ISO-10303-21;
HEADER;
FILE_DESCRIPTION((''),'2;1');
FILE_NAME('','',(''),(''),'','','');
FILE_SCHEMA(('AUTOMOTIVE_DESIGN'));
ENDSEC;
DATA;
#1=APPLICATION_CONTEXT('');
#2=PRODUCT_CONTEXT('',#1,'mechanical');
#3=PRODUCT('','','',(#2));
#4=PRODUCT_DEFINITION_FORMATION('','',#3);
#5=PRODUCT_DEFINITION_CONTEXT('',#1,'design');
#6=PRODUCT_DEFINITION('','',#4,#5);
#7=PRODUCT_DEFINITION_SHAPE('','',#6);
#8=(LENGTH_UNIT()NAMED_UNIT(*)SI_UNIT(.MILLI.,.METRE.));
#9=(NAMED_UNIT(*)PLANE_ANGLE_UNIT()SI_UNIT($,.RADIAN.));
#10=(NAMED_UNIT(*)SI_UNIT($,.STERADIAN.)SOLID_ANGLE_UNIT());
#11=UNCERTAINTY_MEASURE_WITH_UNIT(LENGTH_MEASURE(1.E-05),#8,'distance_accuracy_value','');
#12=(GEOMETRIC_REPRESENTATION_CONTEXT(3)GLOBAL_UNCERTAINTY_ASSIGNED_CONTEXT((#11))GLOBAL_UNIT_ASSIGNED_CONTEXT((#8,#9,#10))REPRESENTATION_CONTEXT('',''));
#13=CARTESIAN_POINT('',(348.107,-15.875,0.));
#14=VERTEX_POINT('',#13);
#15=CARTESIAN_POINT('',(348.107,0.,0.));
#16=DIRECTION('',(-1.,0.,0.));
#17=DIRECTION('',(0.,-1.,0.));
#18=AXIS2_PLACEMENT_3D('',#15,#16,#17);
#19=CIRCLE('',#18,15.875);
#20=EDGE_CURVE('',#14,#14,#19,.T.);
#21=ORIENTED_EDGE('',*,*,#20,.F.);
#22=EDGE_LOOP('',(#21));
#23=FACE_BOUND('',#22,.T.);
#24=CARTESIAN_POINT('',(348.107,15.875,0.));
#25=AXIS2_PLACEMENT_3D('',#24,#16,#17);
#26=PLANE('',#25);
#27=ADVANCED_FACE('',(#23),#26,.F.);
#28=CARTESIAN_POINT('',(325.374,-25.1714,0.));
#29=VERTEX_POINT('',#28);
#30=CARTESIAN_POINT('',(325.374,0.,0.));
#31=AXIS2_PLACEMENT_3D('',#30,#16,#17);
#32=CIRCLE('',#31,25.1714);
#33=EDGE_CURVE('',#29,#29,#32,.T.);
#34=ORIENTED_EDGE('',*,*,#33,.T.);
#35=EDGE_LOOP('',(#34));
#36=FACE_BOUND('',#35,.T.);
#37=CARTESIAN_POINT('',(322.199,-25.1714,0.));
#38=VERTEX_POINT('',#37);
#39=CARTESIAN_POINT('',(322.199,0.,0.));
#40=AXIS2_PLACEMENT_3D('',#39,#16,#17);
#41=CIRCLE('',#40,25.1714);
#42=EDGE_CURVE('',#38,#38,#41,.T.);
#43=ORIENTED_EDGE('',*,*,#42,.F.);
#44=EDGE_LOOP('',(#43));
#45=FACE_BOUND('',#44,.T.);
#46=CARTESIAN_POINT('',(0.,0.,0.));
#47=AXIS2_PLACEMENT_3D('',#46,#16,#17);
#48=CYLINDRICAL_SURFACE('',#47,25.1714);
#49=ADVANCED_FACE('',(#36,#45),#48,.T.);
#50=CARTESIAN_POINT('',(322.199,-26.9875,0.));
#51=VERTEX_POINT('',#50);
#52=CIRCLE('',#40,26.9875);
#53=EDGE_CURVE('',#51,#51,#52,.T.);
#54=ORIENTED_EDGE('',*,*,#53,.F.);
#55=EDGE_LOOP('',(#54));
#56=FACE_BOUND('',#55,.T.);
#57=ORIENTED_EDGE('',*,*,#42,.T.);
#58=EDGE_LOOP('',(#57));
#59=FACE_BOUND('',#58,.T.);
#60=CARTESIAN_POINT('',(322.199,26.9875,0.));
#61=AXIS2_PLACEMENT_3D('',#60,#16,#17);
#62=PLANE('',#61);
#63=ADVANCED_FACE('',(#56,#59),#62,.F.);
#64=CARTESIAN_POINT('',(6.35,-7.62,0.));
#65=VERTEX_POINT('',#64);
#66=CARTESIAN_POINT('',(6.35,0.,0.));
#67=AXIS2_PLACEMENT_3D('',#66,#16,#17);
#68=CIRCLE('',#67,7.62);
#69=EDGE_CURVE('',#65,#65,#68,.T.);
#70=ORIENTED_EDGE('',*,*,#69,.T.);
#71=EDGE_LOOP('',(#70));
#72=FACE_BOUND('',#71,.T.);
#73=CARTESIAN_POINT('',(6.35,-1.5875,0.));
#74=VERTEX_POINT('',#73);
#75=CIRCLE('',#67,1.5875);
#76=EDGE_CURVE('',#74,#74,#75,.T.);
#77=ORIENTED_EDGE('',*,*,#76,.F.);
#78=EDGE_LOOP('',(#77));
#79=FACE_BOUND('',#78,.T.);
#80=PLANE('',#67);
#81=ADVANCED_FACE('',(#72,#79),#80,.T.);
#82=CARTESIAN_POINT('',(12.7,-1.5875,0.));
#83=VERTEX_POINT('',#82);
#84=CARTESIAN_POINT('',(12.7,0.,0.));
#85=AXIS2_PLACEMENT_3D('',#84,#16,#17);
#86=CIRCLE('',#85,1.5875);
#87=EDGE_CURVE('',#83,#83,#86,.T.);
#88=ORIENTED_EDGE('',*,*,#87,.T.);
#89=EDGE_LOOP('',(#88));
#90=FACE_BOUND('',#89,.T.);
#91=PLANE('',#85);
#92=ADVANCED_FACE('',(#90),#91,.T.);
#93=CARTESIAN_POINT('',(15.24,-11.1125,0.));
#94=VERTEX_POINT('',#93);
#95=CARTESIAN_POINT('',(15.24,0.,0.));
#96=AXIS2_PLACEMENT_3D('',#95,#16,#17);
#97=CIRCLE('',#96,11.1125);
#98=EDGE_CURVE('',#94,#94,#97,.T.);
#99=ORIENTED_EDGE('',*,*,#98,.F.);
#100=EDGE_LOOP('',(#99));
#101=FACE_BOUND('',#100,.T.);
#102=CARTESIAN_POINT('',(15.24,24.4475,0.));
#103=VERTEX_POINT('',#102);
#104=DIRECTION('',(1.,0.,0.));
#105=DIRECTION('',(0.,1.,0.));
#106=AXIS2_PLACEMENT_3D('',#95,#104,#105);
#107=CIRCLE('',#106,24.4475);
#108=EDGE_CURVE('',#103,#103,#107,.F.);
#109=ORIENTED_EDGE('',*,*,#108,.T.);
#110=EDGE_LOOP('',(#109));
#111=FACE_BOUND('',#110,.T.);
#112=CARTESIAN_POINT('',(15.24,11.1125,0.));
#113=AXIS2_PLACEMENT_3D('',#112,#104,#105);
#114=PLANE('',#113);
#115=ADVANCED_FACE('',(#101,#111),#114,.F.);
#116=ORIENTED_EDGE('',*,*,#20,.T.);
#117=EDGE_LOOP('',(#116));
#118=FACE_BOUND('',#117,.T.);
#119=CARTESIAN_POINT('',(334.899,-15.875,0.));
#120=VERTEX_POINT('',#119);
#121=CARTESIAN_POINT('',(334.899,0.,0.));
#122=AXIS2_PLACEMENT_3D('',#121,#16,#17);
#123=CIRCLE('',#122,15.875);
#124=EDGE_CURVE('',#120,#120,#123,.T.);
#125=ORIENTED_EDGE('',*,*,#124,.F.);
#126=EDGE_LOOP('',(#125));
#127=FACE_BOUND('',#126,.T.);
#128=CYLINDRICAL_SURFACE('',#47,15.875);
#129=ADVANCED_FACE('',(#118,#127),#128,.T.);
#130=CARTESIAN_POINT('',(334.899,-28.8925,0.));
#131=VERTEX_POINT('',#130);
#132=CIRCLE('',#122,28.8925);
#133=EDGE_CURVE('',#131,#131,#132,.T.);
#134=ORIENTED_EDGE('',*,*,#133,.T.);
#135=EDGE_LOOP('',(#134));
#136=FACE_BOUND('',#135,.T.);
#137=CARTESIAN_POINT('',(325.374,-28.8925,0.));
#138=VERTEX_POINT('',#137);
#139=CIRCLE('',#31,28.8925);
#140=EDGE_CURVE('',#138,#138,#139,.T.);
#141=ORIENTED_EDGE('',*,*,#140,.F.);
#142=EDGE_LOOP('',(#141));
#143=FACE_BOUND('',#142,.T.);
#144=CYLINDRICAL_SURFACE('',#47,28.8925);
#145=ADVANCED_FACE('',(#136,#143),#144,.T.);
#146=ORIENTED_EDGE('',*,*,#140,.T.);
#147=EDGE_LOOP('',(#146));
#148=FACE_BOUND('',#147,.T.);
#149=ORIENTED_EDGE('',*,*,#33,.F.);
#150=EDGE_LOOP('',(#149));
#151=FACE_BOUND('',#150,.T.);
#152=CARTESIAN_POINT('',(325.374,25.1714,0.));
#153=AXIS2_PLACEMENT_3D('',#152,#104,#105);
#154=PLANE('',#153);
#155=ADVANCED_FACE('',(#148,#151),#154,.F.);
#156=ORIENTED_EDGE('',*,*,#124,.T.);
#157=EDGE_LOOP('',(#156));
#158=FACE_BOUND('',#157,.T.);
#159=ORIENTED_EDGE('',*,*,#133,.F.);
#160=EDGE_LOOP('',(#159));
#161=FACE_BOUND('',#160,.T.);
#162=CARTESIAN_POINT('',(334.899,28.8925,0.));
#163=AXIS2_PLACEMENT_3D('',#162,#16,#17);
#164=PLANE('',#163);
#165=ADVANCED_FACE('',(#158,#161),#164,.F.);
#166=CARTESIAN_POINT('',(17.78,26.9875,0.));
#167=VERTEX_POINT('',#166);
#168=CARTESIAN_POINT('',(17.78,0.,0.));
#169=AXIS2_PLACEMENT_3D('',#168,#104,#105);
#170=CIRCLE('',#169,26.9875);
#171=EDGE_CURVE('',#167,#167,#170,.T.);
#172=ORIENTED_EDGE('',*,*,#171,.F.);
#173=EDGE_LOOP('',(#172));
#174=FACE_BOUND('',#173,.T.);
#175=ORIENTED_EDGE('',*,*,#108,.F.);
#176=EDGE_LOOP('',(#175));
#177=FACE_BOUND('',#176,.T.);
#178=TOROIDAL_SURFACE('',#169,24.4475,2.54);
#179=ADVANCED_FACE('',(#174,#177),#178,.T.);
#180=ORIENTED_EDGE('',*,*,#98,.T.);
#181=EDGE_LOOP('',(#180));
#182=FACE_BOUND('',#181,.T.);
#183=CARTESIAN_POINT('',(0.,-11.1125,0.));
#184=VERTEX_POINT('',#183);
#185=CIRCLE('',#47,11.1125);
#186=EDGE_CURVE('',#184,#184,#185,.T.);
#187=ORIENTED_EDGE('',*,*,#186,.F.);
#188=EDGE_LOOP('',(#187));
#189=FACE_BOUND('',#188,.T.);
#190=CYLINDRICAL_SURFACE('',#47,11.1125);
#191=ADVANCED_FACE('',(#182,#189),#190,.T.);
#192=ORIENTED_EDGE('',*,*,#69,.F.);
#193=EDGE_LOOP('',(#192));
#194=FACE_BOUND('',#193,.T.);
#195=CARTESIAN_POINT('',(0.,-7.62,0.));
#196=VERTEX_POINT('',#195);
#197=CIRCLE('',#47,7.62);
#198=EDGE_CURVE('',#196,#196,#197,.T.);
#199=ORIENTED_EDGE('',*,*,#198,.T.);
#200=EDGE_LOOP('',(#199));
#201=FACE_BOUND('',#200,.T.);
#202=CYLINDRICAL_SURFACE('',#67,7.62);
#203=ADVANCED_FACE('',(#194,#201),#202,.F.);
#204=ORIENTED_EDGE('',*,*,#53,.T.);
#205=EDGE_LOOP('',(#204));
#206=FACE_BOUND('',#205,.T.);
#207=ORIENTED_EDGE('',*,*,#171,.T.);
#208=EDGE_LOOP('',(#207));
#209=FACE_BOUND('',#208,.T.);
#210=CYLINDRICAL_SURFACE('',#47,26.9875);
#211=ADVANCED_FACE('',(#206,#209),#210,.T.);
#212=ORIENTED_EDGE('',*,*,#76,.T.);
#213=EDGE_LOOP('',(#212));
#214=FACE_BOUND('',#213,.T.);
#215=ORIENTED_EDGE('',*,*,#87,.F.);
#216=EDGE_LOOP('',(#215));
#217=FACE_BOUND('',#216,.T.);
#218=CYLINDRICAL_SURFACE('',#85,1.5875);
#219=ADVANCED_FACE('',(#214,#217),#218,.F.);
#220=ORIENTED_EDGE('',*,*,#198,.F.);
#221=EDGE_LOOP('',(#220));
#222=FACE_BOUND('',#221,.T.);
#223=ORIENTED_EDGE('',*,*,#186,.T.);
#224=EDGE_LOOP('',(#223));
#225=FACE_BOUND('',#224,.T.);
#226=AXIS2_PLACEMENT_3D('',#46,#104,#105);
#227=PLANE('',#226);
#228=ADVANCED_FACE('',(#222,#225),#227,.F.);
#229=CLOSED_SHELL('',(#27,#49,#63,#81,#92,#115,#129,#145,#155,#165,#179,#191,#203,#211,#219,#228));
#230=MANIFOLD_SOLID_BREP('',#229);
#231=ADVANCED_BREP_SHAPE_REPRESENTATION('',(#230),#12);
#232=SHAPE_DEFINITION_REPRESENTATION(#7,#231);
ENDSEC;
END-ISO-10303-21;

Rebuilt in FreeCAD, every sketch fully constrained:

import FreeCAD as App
import Part
import Sketcher
Q = App.Units.Quantity


def edges_at(feature, points):
    """Names of the edges that pass closest to the given points."""
    edges = feature.Shape.Edges
    near = lambda p: min(range(len(edges)), key=lambda i: edges[i].distToShape(Part.Vertex(*p))[0])
    return sorted({f"Edge{near(p) + 1}" for p in points})

doc = App.newDocument("Part")
body = doc.addObject("PartDesign::Body", "Body")

# Sketch on XY plane
sketch1 = doc.addObject("Sketcher::SketchObject", "Sketch")
body.addObject(sketch1)
sketch1.AttachmentSupport = (doc.XY_Plane, [""])
sketch1.MapMode = "FlatFace"
sketch1.addGeometry([
    Part.LineSegment(App.Vector(0, 11.1, 0), App.Vector(0, 0, 0)),  # 0
    Part.LineSegment(App.Vector(0, 0, 0), App.Vector(348.1, 0, 0)),  # 1
    Part.LineSegment(App.Vector(348.1, 0, 0), App.Vector(348.1, 15.9, 0)),  # 2
    Part.LineSegment(App.Vector(348.1, 15.9, 0), App.Vector(334.9, 15.9, 0)),  # 3
    Part.LineSegment(App.Vector(334.9, 15.9, 0), App.Vector(334.9, 28.9, 0)),  # 4
    Part.LineSegment(App.Vector(334.9, 28.9, 0), App.Vector(325.4, 28.9, 0)),  # 5
    Part.LineSegment(App.Vector(325.4, 28.9, 0), App.Vector(325.4, 25.2, 0)),  # 6
    Part.LineSegment(App.Vector(325.4, 25.2, 0), App.Vector(322.2, 25.2, 0)),  # 7
    Part.LineSegment(App.Vector(322.2, 25.2, 0), App.Vector(322.2, 27, 0)),  # 8
    Part.LineSegment(App.Vector(322.2, 27, 0), App.Vector(15.2, 27, 0)),  # 9
    Part.LineSegment(App.Vector(15.2, 27, 0), App.Vector(15.2, 11.1, 0)),  # 10
    Part.LineSegment(App.Vector(15.2, 11.1, 0), App.Vector(0, 11.1, 0)),  # 11
], False)
sketch1.addConstraint([
    Sketcher.Constraint("Coincident", 0, 2, 1, 1),
    Sketcher.Constraint("Coincident", 1, 2, 2, 1),
    Sketcher.Constraint("Coincident", 2, 2, 3, 1),
    Sketcher.Constraint("Coincident", 3, 2, 4, 1),
    Sketcher.Constraint("Coincident", 4, 2, 5, 1),
    Sketcher.Constraint("Coincident", 5, 2, 6, 1),
    Sketcher.Constraint("Coincident", 6, 2, 7, 1),
    Sketcher.Constraint("Coincident", 7, 2, 8, 1),
    Sketcher.Constraint("Coincident", 8, 2, 9, 1),
    Sketcher.Constraint("Coincident", 9, 2, 10, 1),
    Sketcher.Constraint("Coincident", 10, 2, 11, 1),
    Sketcher.Constraint("Coincident", 11, 2, 0, 1),
    Sketcher.Constraint("Vertical", 0),
    Sketcher.Constraint("Horizontal", 1),
    Sketcher.Constraint("Vertical", 2),
    Sketcher.Constraint("Horizontal", 3),
    Sketcher.Constraint("Vertical", 4),
    Sketcher.Constraint("Horizontal", 5),
    Sketcher.Constraint("Vertical", 6),
    Sketcher.Constraint("Horizontal", 7),
    Sketcher.Constraint("Vertical", 8),
    Sketcher.Constraint("Horizontal", 9),
    Sketcher.Constraint("Vertical", 10),
    Sketcher.Constraint("Horizontal", 11),
    Sketcher.Constraint("Coincident", 0, 2, -1, 1),
    Sketcher.Constraint("Equal", 2, 10),
    Sketcher.Constraint("DistanceX", 11, 2, 11, 1, Q("0.6 in")),
    Sketcher.Constraint("DistanceX", 3, 2, 3, 1, Q("0.52 in")),
    Sketcher.Constraint("DistanceX", 7, 2, 4, 2, Q("0.5 in")),
    Sketcher.Constraint("DistanceX", 1, 1, 1, 2, Q("13.705 in")),
    Sketcher.Constraint("DistanceX", 5, 2, 5, 1, Q("0.375 in")),
    Sketcher.Constraint("DistanceY", 0, 2, 0, 1, Q("0.4375 in")),
    Sketcher.Constraint("DistanceY", 2, 1, 2, 2, Q("0.625 in")),
    Sketcher.Constraint("DistanceY", 4, 1, 4, 2, Q("0.5125 in")),
    Sketcher.Constraint("DistanceY", 6, 2, 6, 1, Q("0.1465 in")),
])
revolution = doc.addObject("PartDesign::Revolution", "Revolution")
body.addObject(revolution)
revolution.Profile = sketch1
revolution.ReferenceAxis = (sketch1, ["H_Axis"])
revolution.Angle = 360
doc.recompute()

fillet = doc.addObject("PartDesign::Fillet", "Fillet")
body.addObject(fillet)
fillet.Base = (revolution, edges_at(revolution, [(15.24, -26.988, 0)]))
fillet.Radius = Q("0.1 in")

# Sketch on YZ plane
sketch2 = doc.addObject("Sketcher::SketchObject", "Sketch001")
body.addObject(sketch2)
sketch2.AttachmentSupport = (doc.YZ_Plane, [""])
sketch2.MapMode = "FlatFace"
sketch2.addGeometry(Part.Circle(App.Vector(0, 0, 0), App.Vector(0, 0, 1), 8), False)
sketch2.addConstraint([
    Sketcher.Constraint("Coincident", 0, 3, -1, 1),
    Sketcher.Constraint("Diameter", 0, Q("0.6 in")),
])
pocket1 = doc.addObject("PartDesign::Pocket", "Pocket")
body.addObject(pocket1)
pocket1.Profile = sketch2
pocket1.Length = Q("0.25 in")
pocket1.Reversed = True

# Sketch on YZ plane
sketch3 = doc.addObject("Sketcher::SketchObject", "Sketch002")
body.addObject(sketch3)
sketch3.AttachmentSupport = (doc.YZ_Plane, [""])
sketch3.MapMode = "FlatFace"
sketch3.AttachmentOffset = App.Placement(App.Vector(0, 0, 0.25 * 25.4), App.Rotation())
sketch3.addGeometry(Part.Circle(App.Vector(0, 0, 0), App.Vector(0, 0, 1), 1.6), False)
sketch3.addConstraint([
    Sketcher.Constraint("Coincident", 0, 3, -1, 1),
    Sketcher.Constraint("Diameter", 0, Q("0.125 in")),
])
pocket2 = doc.addObject("PartDesign::Pocket", "Pocket001")
body.addObject(pocket2)
pocket2.Profile = sketch3
pocket2.Length = Q("0.25 in")
pocket2.Reversed = True

doc.recompute()
